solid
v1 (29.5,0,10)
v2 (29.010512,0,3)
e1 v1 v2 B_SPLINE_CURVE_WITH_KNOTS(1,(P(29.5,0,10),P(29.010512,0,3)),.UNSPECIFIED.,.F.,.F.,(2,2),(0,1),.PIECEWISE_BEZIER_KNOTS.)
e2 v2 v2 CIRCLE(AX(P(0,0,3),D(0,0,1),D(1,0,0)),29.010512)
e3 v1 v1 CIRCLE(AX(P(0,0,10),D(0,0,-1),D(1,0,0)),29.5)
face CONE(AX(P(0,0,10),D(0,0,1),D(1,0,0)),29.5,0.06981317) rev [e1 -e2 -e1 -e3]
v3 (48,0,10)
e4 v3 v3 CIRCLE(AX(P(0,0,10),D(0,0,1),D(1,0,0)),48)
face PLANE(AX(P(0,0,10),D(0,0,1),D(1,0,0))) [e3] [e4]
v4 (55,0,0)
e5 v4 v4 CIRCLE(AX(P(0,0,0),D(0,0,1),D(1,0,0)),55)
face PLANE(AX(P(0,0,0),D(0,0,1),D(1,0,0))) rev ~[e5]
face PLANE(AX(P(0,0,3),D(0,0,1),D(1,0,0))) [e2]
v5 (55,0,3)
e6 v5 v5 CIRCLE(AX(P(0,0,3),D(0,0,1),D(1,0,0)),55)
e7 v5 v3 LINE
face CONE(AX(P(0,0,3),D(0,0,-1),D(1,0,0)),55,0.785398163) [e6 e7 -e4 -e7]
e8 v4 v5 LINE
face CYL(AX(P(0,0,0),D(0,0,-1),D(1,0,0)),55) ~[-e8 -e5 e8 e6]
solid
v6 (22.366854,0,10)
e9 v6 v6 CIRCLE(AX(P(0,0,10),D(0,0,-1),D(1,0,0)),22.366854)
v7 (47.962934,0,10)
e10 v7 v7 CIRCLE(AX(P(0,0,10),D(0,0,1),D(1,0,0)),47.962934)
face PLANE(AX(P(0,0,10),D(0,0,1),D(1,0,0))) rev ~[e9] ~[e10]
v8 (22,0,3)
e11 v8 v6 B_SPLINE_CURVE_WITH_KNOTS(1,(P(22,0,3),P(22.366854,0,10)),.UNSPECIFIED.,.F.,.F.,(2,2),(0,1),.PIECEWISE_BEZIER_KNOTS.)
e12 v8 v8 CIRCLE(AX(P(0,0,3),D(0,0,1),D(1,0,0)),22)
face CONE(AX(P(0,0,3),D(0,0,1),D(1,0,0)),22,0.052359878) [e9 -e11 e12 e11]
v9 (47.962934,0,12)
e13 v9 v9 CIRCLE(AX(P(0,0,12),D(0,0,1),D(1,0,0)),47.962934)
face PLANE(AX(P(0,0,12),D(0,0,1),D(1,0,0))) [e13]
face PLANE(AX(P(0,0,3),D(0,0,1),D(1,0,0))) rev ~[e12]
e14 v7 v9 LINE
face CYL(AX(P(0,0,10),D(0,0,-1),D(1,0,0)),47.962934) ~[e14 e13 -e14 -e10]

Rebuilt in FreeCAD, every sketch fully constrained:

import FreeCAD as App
import Part
import Sketcher

V = App.Vector
Q = App.Units.Quantity


def edges_at(feature, points):
    """Names of the edges that pass closest to the given points."""
    edges = feature.Shape.Edges
    near = lambda p: min(range(len(edges)), key=lambda i: edges[i].distToShape(Part.Vertex(*p))[0])
    return sorted({f"Edge{near(p) + 1}" for p in points})

doc = App.newDocument("Part")
body = doc.addObject("PartDesign::Body", "Body")

sketch1 = body.newObject("Sketcher::SketchObject", "Sketch")
sketch1.AttachmentSupport = (doc.getObject("XY_Plane"), [""])
sketch1.MapMode = "FlatFace"
sketch1.addGeometry(Part.Circle(V(0, 0, 0), V(0, 0, 1), 55), False)
sketch1.addConstraint([
    Sketcher.Constraint("Coincident", 0, 3, -1, 1),
    Sketcher.Constraint("Diameter", 0, Q("110 mm")),
])
pad1 = body.newObject("PartDesign::Pad", "Pad")
pad1.Profile = sketch1
pad1.Length = 10
doc.recompute()

chamfer = body.newObject("PartDesign::Chamfer", "Chamfer")
chamfer.Base = (pad1, edges_at(pad1, [(-55, 0, 10)]))
chamfer.Size = 7

sketch2 = body.newObject("Sketcher::SketchObject", "Sketch001")
sketch2.AttachmentSupport = (doc.getObject("XY_Plane"), [""])
sketch2.MapMode = "FlatFace"
sketch2.AttachmentOffset = App.Placement(V(0, 0, 10), App.Rotation())
sketch2.addGeometry(Part.Circle(V(0, 0, 0), V(0, 0, 1), 30), False)
sketch2.addConstraint([
    Sketcher.Constraint("Coincident", 0, 3, -1, 1),
    Sketcher.Constraint("Diameter", 0, Q("59 mm")),
])
pocket1 = body.newObject("PartDesign::Pocket", "Pocket")
pocket1.Profile = sketch2
pocket1.Length = 7
pocket1.TaperAngle = -4
body2 = doc.addObject("PartDesign::Body", "Body001")

sketch3 = body2.newObject("Sketcher::SketchObject", "Sketch002")
sketch3.AttachmentSupport = (doc.getObject("XY_Plane001"), [""])
sketch3.MapMode = "FlatFace"
sketch3.AttachmentOffset = App.Placement(V(0, 0, 3), App.Rotation())
sketch3.addGeometry(Part.Circle(V(0, 0, 0), V(0, 0, 1), 22), False)
sketch3.addConstraint([
    Sketcher.Constraint("Coincident", 0, 3, -1, 1),
    Sketcher.Constraint("Diameter", 0, Q("44 mm")),
])
pad2 = body2.newObject("PartDesign::Pad", "Pad001")
pad2.Profile = sketch3
pad2.Length = 7
pad2.TaperAngle = 3

sketch4 = body2.newObject("Sketcher::SketchObject", "Sketch003")
sketch4.AttachmentSupport = (doc.getObject("XY_Plane001"), [""])
sketch4.MapMode = "FlatFace"
sketch4.AttachmentOffset = App.Placement(V(0, 0, 10), App.Rotation())
sketch4.addGeometry(Part.Circle(V(0, 0, 0), V(0, 0, 1), 48), False)
sketch4.addConstraint([
    Sketcher.Constraint("Coincident", 0, 3, -1, 1),
    Sketcher.Constraint("Diameter", 0, Q("95.925867 mm")),
])
pad3 = body2.newObject("PartDesign::Pad", "Pad002")
pad3.Profile = sketch4
pad3.Length = 2

doc.recompute()
